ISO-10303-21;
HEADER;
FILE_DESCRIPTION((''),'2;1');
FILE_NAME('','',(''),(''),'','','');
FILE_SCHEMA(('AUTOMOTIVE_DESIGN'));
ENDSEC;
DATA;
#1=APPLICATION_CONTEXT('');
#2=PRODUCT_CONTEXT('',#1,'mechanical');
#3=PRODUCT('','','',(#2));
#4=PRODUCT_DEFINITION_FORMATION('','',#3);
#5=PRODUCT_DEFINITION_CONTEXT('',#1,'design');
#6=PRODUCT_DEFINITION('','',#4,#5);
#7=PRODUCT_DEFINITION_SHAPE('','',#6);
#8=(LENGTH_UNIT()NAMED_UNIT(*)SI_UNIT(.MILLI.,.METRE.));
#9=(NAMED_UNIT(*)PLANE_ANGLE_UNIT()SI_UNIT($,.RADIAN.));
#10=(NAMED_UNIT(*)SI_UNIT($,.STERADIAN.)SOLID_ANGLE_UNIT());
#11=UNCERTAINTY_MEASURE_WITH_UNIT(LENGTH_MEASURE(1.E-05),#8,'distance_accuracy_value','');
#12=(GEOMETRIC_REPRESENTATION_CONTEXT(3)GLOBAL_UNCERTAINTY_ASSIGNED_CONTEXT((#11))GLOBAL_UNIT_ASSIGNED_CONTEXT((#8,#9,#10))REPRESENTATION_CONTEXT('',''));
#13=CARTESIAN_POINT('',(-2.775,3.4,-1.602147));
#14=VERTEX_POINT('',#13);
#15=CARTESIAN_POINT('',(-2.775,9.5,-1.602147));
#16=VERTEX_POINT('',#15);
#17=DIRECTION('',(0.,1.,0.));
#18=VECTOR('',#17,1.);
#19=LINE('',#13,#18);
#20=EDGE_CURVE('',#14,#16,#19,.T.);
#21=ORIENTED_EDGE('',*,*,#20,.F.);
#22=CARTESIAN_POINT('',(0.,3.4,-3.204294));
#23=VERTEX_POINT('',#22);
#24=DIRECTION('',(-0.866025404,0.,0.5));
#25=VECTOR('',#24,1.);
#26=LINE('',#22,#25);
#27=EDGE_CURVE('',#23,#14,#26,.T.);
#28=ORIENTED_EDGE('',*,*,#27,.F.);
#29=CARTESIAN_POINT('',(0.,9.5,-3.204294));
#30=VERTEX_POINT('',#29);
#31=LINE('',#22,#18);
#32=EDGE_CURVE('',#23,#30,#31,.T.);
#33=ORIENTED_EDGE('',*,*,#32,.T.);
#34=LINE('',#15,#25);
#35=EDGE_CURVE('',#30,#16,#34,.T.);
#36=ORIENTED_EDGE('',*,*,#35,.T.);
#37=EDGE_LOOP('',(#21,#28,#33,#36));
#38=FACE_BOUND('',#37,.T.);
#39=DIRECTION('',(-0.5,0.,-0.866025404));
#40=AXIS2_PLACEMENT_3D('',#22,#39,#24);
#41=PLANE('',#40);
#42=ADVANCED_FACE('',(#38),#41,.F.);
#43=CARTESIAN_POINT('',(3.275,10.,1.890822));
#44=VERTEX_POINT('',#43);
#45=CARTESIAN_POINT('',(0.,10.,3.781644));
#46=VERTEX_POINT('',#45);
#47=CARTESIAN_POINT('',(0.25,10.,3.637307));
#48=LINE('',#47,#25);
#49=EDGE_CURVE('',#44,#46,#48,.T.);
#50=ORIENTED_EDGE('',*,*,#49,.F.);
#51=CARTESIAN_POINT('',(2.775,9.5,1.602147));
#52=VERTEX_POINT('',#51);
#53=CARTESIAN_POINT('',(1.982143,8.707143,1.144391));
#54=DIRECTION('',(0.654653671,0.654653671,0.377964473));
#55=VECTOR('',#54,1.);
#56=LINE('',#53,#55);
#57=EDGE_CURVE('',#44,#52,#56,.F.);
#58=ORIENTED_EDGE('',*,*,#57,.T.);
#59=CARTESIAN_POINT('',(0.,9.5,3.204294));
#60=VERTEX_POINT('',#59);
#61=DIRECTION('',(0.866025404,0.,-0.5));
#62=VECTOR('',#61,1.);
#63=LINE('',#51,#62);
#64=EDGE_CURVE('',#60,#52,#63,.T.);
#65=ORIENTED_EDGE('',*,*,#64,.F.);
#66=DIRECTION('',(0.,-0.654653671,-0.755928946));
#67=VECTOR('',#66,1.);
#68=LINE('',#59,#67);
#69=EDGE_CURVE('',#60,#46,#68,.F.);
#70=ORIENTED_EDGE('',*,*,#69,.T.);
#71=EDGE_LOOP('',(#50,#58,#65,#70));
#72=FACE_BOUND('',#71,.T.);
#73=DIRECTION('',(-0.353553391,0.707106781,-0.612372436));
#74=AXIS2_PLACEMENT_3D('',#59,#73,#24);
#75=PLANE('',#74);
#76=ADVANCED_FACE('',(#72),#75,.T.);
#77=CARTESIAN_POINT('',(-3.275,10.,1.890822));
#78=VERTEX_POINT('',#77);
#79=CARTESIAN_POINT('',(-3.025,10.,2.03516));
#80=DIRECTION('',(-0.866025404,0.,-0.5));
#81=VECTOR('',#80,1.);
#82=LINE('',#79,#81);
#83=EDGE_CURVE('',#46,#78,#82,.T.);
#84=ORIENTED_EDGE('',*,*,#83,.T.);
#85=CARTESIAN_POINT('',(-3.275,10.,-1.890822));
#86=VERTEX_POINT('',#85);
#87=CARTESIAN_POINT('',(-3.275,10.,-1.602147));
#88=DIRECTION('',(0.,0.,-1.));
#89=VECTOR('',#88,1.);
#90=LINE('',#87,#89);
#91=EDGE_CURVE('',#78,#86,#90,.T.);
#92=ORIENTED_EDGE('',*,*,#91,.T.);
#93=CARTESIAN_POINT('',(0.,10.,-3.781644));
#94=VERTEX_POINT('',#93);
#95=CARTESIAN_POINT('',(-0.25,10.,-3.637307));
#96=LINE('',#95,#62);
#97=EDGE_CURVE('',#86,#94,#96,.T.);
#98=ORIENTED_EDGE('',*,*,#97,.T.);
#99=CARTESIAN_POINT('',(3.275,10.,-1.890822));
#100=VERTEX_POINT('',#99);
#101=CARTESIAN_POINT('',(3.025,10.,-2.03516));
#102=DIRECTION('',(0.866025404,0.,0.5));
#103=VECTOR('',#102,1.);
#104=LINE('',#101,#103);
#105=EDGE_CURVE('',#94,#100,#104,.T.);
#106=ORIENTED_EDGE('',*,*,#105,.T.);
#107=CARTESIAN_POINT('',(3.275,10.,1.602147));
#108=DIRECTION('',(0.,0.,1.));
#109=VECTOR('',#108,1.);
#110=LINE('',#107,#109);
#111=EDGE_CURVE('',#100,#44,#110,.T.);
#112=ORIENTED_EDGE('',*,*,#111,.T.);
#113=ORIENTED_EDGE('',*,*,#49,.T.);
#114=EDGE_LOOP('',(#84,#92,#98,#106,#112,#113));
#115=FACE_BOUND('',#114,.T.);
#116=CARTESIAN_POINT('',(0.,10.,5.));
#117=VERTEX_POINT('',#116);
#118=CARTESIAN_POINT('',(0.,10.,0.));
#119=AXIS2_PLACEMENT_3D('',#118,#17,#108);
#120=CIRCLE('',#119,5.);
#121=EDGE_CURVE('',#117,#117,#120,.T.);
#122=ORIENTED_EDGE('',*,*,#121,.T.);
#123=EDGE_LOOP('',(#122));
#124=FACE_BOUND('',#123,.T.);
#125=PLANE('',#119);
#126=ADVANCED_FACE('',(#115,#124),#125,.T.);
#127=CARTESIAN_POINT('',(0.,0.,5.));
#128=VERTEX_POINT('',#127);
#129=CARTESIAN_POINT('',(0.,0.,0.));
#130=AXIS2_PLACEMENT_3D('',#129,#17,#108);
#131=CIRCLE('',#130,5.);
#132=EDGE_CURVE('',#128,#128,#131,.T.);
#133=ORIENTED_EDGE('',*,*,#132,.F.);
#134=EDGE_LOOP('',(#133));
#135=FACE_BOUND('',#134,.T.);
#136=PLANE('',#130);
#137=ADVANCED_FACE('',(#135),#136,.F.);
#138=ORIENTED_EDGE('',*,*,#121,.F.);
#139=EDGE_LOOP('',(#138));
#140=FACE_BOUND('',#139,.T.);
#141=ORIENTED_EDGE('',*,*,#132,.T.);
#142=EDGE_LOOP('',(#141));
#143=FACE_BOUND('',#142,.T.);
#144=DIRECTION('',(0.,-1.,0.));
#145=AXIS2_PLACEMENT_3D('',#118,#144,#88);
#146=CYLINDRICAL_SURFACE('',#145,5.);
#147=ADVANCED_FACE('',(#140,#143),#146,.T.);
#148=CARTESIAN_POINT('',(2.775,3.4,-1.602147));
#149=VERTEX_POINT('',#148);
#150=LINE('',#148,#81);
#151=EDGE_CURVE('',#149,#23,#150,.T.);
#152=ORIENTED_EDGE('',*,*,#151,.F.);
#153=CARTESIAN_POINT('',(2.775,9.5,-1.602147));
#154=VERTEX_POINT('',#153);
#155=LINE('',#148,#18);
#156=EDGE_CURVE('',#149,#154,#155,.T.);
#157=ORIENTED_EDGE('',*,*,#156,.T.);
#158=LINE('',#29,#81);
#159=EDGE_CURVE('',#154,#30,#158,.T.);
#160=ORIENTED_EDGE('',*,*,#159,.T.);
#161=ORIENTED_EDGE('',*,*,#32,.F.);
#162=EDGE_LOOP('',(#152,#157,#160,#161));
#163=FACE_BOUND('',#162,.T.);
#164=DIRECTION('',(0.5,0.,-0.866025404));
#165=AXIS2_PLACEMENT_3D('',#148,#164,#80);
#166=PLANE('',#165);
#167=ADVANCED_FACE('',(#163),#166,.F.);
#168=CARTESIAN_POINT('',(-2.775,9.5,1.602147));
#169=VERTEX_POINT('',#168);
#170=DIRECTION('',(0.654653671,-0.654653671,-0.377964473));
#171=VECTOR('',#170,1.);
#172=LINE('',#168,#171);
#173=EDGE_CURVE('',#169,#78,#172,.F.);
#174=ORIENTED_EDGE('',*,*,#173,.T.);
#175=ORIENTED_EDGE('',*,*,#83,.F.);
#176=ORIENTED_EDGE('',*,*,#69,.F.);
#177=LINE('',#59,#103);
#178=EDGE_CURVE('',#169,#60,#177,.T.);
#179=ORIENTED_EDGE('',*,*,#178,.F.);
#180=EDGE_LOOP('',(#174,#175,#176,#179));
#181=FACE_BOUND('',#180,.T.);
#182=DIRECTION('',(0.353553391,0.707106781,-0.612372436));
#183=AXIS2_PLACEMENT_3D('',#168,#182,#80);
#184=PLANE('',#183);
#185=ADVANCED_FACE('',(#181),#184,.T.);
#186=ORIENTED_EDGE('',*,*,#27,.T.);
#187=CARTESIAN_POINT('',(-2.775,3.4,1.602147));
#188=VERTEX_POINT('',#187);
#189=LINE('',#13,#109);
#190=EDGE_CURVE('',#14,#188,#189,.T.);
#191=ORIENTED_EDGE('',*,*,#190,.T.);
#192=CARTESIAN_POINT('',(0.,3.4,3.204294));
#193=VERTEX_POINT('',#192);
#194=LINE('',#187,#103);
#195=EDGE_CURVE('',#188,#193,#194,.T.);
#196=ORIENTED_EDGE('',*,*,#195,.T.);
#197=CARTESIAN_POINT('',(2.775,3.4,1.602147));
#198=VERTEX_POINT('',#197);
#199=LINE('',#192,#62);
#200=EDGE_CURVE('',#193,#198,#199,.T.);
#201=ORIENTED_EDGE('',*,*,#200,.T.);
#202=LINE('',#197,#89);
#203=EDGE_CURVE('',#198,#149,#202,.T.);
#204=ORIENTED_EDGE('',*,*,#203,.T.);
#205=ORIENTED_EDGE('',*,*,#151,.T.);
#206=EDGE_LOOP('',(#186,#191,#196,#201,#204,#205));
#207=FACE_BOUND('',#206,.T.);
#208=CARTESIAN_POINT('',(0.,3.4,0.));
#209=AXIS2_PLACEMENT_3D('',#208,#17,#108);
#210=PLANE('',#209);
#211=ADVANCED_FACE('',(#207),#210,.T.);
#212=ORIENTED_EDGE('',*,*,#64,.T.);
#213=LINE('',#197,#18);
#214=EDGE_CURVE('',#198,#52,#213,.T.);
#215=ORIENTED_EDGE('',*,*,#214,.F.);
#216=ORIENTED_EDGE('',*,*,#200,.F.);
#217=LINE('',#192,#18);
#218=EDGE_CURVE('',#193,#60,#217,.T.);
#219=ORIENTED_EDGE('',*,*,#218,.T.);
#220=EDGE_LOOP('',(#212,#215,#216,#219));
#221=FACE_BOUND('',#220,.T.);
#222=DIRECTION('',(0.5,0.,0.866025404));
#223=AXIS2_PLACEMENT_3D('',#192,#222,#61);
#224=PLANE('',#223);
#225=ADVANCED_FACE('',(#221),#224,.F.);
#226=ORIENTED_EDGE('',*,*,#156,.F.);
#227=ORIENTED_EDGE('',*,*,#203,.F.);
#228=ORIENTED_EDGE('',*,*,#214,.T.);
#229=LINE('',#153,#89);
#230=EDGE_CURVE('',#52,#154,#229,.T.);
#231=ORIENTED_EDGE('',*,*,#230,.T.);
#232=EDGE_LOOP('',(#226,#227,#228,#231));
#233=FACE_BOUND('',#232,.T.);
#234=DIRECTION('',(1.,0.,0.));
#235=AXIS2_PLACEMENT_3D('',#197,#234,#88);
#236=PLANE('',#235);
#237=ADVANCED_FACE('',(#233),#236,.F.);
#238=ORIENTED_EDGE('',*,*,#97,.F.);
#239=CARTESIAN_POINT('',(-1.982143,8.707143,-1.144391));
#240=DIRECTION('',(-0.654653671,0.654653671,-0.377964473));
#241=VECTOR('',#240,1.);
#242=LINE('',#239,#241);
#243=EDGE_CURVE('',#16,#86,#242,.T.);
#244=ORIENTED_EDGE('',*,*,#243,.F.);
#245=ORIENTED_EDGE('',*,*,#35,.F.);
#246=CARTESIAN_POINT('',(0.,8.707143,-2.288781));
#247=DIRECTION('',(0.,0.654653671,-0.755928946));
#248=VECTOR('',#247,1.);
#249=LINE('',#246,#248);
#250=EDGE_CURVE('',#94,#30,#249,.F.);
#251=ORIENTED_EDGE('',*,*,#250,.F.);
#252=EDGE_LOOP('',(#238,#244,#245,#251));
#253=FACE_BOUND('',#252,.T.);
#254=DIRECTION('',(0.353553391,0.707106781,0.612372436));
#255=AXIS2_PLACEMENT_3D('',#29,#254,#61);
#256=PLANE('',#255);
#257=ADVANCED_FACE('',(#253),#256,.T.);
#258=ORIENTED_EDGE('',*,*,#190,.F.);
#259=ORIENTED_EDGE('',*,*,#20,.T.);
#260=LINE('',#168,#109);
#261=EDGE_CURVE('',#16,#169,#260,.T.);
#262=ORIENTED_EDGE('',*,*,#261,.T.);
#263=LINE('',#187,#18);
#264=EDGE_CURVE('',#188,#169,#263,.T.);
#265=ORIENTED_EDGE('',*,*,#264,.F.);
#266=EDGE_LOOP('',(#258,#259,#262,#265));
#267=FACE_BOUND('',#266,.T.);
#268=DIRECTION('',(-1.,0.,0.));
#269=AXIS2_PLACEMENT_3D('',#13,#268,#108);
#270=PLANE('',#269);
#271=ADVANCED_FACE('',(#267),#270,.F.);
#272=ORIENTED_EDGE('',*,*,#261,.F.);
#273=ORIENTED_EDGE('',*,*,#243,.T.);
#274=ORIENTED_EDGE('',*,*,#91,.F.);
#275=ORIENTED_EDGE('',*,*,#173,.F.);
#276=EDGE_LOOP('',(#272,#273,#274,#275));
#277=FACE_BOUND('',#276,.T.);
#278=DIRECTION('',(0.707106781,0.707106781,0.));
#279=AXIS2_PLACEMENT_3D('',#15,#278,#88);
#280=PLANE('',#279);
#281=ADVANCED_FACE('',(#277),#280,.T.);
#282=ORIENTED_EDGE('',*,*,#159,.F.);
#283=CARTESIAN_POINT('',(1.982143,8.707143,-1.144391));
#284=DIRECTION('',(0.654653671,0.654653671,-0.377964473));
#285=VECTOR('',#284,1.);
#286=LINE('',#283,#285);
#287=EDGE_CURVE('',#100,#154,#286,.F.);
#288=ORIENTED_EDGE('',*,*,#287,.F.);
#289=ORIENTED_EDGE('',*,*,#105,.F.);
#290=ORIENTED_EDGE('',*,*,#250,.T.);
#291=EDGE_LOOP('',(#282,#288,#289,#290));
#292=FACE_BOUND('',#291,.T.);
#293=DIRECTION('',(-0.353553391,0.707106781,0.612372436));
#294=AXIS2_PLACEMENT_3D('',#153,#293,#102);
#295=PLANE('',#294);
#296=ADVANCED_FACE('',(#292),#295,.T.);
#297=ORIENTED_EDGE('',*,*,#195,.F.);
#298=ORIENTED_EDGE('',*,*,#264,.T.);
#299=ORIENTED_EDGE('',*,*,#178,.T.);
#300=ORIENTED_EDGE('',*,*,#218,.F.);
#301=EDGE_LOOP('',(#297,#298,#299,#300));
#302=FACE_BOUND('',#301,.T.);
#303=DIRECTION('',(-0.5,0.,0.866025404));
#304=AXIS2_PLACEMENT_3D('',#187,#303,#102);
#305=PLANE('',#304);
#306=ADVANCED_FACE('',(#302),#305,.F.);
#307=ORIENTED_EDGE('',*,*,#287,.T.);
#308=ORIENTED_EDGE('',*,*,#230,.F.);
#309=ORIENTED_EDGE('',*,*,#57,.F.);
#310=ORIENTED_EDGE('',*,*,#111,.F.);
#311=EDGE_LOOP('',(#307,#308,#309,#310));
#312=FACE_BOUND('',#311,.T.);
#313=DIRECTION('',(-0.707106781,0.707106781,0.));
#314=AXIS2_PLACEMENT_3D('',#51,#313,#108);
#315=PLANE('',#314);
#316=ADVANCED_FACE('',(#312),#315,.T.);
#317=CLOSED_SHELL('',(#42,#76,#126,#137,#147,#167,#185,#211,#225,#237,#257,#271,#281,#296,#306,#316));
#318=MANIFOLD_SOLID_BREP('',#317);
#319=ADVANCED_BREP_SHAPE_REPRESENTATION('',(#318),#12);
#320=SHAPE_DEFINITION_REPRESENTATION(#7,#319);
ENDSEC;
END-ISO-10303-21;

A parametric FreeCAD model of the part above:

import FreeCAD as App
import Part
import Sketcher
from FreeCAD import Vector
Q = App.Units.Quantity


def edges_at(feature, points):
    """Names of the edges that pass closest to the given points."""
    edges = feature.Shape.Edges
    near = lambda p: min(range(len(edges)), key=lambda i: edges[i].distToShape(Part.Vertex(*p))[0])
    return sorted({f"Edge{near(p) + 1}" for p in points})


def add_polygon(sketch, points):
    """Adds a closed chain of lines whose ends are joined by coincident constraints."""
    first, n = sketch.GeometryCount, len(points)
    for a, b in zip(points, points[1:] + points[:1]):
        sketch.addGeometry(Part.LineSegment(App.Vector(*a, 0), App.Vector(*b, 0)), False)
    for i in range(n):
        sketch.addConstraint(Sketcher.Constraint("Coincident", first + i, 2, first + (i + 1) % n, 1))

doc = App.newDocument("Part")
body = doc.addObject("PartDesign::Body", "Body")

sketch1 = body.newObject("Sketcher::SketchObject", "Sketch")
sketch1.AttachmentSupport = (doc.getObject("XZ_Plane"), [""])
sketch1.MapMode = "FlatFace"
sketch1.addGeometry(Part.Circle(Vector(0, 0, 0), Vector(0, 0, 1), 5), False)
sketch1.addConstraint([
    Sketcher.Constraint("Coincident", 0, 3, -1, 1),
    Sketcher.Constraint("Diameter", 0, 10.0),
])
pad1 = body.newObject("PartDesign::Pad", "Pad")
pad1.Profile = sketch1
pad1.Length = 10
pad1.Reversed = True

sketch2 = body.newObject("Sketcher::SketchObject", "Sketch001")
sketch2.AttachmentSupport = (doc.getObject("XZ_Plane"), [""])
sketch2.MapMode = "FlatFace"
sketch2.AttachmentOffset = App.Placement(Vector(0, 0, -10), App.Rotation())
add_polygon(sketch2, [(-2.775, 1.602147), (0, 3.204294), (2.775, 1.602147), (2.775, -1.602147), (0, -3.204294), (-2.775, -1.602147)])
sketch2.addConstraint([
    Sketcher.Constraint("Vertical", 2),
    Sketcher.Constraint("Vertical", 5),
    Sketcher.Constraint("Symmetric", 0, 2, 3, 2, -1, 1),
    Sketcher.Constraint("Symmetric", 1, 2, 4, 2, -1, 1),
    Sketcher.Constraint("PointOnObject", 0, 2, -2),
    Sketcher.Constraint("Parallel", 0, 3),
    Sketcher.Constraint("Horizontal", 2, 2, 4, 2),
    Sketcher.Constraint("Angle", 0, Q("30 deg")),
    Sketcher.Constraint("DistanceX", 4, 2, 2, 2, 5.55),
    Sketcher.Constraint("DistanceY", 2, 2, 2, 1, 3.204294),
])
pocket1 = body.newObject("PartDesign::Pocket", "Pocket")
pocket1.Profile = sketch2
pocket1.Length = 6.6
pocket1.Reversed = True
doc.recompute()

chamfer = body.newObject("PartDesign::Chamfer", "Chamfer")
chamfer.Base = (pocket1, edges_at(pocket1, [
    (-2.775, 10, 0),
    (-1.387, 10, 2.403),
    (1.387, 10, 2.403),
    (2.775, 10, 0),
    (1.387, 10, -2.403),
    (-1.387, 10, -2.403),
]))
chamfer.Size = 0.5

doc.recompute()
